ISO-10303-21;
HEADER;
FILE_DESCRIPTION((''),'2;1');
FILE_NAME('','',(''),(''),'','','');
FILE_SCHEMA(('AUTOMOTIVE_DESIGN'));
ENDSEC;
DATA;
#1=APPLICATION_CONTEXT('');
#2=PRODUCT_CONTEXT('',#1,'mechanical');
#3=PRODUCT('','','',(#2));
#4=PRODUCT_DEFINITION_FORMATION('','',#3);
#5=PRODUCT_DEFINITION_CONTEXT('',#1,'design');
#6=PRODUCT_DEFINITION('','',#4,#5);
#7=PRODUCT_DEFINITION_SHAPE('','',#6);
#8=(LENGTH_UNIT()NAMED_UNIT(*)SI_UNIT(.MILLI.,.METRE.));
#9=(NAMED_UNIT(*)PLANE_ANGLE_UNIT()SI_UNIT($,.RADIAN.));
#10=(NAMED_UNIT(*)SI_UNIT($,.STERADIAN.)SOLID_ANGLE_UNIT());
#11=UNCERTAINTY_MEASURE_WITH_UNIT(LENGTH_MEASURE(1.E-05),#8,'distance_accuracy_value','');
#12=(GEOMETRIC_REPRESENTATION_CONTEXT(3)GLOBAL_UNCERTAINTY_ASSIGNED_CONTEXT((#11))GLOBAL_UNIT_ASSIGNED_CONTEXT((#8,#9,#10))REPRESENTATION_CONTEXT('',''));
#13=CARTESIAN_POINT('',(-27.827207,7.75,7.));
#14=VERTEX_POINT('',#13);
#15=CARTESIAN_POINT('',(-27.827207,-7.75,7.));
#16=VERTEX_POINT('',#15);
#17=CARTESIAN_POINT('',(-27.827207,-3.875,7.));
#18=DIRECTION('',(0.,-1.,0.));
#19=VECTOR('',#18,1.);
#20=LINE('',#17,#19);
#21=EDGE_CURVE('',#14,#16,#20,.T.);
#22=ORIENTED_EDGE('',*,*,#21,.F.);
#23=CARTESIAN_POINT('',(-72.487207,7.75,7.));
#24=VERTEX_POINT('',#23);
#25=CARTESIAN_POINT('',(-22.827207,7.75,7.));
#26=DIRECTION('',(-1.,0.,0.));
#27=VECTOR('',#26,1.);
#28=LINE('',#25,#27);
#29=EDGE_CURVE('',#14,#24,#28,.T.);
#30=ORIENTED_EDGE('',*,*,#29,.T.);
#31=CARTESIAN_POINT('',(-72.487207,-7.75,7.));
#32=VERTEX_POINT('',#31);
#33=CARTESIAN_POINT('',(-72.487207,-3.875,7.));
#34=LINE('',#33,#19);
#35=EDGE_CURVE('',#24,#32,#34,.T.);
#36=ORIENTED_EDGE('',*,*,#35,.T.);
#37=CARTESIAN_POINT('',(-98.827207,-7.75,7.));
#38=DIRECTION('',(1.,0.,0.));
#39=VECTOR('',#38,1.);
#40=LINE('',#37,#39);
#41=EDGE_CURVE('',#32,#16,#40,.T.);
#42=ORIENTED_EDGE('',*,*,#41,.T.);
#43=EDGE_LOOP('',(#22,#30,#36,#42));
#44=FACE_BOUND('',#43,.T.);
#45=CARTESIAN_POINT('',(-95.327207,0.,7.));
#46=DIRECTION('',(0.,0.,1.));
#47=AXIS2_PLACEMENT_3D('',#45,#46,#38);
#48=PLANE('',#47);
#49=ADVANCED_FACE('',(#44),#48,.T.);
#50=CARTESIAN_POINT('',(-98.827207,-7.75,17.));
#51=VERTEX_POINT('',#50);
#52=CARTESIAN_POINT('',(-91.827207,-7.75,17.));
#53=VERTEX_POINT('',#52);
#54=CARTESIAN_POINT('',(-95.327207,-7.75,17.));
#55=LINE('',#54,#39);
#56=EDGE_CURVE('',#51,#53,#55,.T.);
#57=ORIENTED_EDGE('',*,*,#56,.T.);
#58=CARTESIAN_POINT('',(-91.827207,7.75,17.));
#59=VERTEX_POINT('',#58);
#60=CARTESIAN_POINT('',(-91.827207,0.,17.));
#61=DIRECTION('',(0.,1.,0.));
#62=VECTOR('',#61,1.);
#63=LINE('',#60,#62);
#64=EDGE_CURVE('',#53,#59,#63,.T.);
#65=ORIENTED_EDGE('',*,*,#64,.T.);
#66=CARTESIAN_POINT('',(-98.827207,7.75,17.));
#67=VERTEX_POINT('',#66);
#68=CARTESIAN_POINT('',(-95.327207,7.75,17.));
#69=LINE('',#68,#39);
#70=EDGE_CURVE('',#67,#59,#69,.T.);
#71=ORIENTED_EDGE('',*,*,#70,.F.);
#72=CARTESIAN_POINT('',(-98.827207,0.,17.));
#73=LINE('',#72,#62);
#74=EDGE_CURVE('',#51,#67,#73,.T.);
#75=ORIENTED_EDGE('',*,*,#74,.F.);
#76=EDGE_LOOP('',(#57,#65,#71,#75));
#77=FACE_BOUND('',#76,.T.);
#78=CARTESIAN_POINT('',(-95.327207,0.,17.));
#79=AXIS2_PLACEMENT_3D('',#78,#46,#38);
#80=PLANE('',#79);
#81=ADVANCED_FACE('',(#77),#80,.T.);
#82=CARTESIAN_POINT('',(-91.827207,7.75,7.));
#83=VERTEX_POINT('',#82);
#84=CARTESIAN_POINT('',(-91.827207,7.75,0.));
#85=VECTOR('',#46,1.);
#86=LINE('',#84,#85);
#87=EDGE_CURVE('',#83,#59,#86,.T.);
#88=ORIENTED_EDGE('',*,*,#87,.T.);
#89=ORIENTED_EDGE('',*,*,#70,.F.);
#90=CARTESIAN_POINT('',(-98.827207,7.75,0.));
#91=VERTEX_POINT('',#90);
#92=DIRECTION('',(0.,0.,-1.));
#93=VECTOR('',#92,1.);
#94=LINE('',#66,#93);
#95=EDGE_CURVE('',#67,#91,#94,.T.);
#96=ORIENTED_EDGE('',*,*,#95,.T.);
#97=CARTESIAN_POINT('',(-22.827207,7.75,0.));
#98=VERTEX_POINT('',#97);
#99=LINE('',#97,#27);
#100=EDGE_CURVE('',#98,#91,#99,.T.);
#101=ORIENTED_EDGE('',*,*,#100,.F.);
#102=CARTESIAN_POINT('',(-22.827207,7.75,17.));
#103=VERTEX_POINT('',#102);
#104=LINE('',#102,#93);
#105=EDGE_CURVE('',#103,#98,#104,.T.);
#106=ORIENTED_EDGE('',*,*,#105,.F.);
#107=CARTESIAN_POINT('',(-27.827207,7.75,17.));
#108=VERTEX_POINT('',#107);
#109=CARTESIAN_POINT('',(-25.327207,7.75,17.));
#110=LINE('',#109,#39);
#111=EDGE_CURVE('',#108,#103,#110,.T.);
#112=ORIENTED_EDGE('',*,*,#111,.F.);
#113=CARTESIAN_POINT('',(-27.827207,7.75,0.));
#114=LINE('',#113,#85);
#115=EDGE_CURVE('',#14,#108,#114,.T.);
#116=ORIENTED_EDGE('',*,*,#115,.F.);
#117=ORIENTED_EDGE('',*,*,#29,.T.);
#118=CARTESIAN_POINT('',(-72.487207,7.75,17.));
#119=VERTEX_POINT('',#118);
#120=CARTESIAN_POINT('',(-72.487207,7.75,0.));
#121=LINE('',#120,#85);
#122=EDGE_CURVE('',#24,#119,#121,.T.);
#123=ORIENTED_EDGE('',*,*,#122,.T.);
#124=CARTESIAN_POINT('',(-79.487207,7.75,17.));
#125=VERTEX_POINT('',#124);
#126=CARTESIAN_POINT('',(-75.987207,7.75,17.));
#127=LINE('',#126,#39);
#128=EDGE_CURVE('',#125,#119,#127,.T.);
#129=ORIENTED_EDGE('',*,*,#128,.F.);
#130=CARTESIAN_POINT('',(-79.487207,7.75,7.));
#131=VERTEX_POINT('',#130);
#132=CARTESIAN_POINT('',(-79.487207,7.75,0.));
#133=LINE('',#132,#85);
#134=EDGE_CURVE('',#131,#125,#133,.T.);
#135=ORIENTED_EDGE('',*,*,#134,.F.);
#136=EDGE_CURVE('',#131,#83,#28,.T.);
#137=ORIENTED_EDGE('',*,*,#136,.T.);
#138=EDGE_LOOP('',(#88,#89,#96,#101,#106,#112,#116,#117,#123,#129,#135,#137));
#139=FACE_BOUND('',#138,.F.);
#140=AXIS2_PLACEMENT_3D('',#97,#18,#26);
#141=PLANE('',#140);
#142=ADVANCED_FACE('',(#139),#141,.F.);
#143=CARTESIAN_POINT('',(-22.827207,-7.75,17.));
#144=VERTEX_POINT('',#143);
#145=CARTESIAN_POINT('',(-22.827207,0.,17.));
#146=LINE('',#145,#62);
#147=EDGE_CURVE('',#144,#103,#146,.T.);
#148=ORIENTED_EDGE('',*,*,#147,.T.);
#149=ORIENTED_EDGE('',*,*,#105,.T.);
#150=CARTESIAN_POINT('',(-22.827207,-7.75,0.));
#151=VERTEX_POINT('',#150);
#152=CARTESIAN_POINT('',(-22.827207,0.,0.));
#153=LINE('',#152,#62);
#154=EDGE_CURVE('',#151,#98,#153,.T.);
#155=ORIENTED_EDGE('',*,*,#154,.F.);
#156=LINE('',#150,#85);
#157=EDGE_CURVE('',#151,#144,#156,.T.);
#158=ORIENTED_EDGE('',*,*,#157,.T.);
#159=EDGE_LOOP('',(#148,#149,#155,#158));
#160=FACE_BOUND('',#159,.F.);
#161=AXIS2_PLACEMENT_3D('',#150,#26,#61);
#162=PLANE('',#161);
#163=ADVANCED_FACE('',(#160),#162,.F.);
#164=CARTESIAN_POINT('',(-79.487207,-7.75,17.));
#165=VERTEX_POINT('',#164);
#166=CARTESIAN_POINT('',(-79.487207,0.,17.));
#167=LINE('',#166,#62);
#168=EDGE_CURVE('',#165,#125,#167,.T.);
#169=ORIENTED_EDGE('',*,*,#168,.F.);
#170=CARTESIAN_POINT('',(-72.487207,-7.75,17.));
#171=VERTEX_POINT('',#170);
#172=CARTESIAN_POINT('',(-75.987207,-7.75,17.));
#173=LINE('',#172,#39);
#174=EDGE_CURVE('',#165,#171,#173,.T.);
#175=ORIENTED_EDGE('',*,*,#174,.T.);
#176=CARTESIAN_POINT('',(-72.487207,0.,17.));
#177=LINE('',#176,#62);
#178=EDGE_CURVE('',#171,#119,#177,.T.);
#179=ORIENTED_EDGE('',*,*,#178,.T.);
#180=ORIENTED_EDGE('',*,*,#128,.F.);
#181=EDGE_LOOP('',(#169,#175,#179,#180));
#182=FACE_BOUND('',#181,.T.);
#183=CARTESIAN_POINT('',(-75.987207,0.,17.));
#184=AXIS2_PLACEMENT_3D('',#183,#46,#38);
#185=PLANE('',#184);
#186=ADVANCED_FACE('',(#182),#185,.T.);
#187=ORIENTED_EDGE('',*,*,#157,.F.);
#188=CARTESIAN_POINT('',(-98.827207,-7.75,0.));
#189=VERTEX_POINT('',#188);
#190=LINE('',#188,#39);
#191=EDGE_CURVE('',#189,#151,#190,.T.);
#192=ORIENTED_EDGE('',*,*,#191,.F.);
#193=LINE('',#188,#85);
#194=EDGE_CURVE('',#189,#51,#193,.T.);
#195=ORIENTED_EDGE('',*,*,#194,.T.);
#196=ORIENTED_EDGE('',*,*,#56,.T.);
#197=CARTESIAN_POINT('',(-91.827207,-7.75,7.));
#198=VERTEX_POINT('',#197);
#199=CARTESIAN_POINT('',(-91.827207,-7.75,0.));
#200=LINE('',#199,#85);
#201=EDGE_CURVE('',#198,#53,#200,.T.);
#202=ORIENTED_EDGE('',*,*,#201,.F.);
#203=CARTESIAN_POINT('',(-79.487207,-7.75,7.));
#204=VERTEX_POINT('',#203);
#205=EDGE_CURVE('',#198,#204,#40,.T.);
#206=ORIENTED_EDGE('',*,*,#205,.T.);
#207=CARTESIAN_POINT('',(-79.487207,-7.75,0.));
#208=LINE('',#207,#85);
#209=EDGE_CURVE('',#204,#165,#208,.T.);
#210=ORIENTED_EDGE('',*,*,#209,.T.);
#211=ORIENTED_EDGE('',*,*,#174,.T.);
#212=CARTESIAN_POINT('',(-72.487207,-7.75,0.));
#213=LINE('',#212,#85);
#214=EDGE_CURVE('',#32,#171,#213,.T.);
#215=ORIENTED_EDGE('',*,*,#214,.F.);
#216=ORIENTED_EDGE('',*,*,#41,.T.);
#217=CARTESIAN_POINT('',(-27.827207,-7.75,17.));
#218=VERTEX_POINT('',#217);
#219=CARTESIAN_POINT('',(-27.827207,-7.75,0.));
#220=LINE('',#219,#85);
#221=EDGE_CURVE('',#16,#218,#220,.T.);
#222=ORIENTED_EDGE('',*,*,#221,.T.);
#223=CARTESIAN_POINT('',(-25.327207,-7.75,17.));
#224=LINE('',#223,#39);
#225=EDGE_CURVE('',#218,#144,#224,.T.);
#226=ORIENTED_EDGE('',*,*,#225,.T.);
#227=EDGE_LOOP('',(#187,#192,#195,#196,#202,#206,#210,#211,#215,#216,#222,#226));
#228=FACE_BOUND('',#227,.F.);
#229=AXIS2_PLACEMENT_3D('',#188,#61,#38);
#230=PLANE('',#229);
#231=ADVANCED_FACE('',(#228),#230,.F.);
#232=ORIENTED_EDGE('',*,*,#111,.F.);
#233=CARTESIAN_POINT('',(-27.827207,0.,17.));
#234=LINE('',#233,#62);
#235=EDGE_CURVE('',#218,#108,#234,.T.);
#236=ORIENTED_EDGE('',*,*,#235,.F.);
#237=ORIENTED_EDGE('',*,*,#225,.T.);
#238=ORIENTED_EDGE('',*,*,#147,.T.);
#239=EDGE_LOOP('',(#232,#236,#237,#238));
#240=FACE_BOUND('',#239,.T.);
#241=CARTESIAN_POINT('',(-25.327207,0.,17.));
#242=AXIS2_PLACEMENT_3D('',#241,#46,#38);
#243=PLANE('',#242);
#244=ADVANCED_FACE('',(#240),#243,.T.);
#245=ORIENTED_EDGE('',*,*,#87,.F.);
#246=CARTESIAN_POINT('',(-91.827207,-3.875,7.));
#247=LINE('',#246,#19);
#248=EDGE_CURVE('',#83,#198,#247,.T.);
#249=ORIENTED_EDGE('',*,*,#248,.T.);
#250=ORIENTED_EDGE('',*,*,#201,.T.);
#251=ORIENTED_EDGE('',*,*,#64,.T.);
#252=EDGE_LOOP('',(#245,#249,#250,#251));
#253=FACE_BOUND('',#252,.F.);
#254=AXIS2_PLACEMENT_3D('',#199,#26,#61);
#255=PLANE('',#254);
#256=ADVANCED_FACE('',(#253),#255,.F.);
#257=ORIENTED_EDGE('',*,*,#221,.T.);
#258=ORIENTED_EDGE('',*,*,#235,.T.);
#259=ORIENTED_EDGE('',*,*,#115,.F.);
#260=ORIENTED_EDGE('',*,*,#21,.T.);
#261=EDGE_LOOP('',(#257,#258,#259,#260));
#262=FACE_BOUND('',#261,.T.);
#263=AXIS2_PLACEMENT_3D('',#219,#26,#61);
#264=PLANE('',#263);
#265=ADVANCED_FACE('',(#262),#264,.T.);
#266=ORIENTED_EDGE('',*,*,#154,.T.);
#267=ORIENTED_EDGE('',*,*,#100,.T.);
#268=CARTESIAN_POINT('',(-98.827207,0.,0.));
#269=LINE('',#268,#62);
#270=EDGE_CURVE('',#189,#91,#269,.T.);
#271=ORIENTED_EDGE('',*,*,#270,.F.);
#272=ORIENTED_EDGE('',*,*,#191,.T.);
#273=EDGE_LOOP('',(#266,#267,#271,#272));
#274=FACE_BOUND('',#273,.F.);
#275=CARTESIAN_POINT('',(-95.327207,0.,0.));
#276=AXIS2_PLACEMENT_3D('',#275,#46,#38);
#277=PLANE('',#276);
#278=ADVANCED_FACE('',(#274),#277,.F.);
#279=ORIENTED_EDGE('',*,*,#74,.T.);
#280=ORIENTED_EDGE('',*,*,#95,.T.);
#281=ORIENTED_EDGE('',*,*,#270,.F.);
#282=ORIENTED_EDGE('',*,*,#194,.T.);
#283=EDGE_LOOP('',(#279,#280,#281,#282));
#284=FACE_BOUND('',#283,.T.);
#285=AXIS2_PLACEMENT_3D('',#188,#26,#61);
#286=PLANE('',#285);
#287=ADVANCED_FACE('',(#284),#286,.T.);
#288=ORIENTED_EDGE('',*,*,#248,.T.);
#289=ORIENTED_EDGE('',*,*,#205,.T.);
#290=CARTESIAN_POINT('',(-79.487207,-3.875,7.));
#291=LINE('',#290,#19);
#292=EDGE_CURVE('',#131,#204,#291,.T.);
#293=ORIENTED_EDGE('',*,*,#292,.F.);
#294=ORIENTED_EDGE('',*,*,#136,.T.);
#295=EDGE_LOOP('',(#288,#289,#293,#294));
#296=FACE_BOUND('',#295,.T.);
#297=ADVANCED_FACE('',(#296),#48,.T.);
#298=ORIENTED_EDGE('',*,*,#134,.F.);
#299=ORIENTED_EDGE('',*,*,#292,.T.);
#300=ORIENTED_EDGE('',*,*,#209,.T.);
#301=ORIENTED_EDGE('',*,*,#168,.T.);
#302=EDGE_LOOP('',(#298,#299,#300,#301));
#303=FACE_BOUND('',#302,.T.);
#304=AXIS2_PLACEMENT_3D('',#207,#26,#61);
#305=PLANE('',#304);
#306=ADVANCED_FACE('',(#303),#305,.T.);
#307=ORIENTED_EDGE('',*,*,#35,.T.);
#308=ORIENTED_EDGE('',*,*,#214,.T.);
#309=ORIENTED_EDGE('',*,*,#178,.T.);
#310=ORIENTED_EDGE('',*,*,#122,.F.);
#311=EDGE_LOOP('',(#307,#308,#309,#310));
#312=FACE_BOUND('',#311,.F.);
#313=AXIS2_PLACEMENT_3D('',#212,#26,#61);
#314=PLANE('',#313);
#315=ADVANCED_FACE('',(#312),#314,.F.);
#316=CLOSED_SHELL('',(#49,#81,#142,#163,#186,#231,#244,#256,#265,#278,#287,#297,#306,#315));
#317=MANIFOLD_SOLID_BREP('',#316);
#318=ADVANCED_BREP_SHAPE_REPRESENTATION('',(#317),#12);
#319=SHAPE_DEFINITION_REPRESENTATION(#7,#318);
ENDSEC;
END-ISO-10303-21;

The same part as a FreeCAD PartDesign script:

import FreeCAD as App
import Part
import Sketcher
from FreeCAD import Vector
Q = App.Units.Quantity


def add_polygon(sketch, points):
    """Adds a closed chain of lines whose ends are joined by coincident constraints."""
    first, n = sketch.GeometryCount, len(points)
    for a, b in zip(points, points[1:] + points[:1]):
        sketch.addGeometry(Part.LineSegment(App.Vector(*a, 0), App.Vector(*b, 0)), False)
    for i in range(n):
        sketch.addConstraint(Sketcher.Constraint("Coincident", first + i, 2, first + (i + 1) % n, 1))

doc = App.newDocument("Part")
body = doc.addObject("PartDesign::Body", "Body")

# Sketch on XY plane
sketch1 = body.newObject("Sketcher::SketchObject", "Sketch")
sketch1.AttachmentSupport = (doc.getObject("XY_Plane"), [""])
sketch1.MapMode = "FlatFace"
add_polygon(sketch1, [(-98.827207, 7.75), (-98.827207, -7.75), (-22.827207, -7.75), (-22.827207, 7.75)])  # lines 0-3
sketch1.addConstraint([
    Sketcher.Constraint("Vertical", 0),
    Sketcher.Constraint("Horizontal", 1),
    Sketcher.Constraint("Vertical", 2),
    Sketcher.Constraint("Horizontal", 3),
    Sketcher.Constraint("DistanceX", 1, 1, 1, 2, Q("76 mm")),
    Sketcher.Constraint("DistanceY", 0, 2, 0, 1, Q("15.5 mm")),
    Sketcher.Constraint("DistanceY", 0, 2, -1, 1, Q("7.75 mm")),
    Sketcher.Constraint("DistanceX", 0, 2, -1, 1, Q("98.827207 mm")),
])
pad1 = body.newObject("PartDesign::Pad", "Pad")
pad1.Profile = sketch1
pad1.Length = 7

# Sketch on XY plane
sketch2 = body.newObject("Sketcher::SketchObject", "Sketch001")
sketch2.AttachmentSupport = (doc.getObject("XY_Plane"), [""])
sketch2.MapMode = "FlatFace"
add_polygon(sketch2, [(-98.827207, 7.75), (-98.827207, -7.75), (-91.827207, -7.75), (-91.827207, 7.75)])  # lines 0-3
add_polygon(sketch2, [(-79.487207, 7.75), (-79.487207, -7.75), (-72.487207, -7.75), (-72.487207, 7.75)])  # lines 4-7
add_polygon(sketch2, [(-27.827207, 7.75), (-27.827207, -7.75), (-22.827207, -7.75), (-22.827207, 7.75)])  # lines 8-11
sketch2.addConstraint([
    Sketcher.Constraint("Vertical", 0),
    Sketcher.Constraint("Horizontal", 1),
    Sketcher.Constraint("Vertical", 2),
    Sketcher.Constraint("Horizontal", 3),
    Sketcher.Constraint("Vertical", 4),
    Sketcher.Constraint("Horizontal", 5),
    Sketcher.Constraint("Vertical", 6),
    Sketcher.Constraint("Horizontal", 7),
    Sketcher.Constraint("Vertical", 8),
    Sketcher.Constraint("Horizontal", 9),
    Sketcher.Constraint("Vertical", 10),
    Sketcher.Constraint("Horizontal", 11),
    Sketcher.Constraint("Horizontal", 1, 2, 4, 2),
    Sketcher.Constraint("Horizontal", 3, 2, 6, 2),
    Sketcher.Constraint("Horizontal", 5, 2, 8, 2),
    Sketcher.Constraint("Horizontal", 7, 2, 10, 2),
    Sketcher.Constraint("Equal", 3, 5),
    Sketcher.Constraint("DistanceX", 1, 1, 1, 2, Q("7 mm")),
    Sketcher.Constraint("DistanceX", 9, 1, 9, 2, Q("5 mm")),
    Sketcher.Constraint("DistanceY", 0, 2, 0, 1, Q("15.5 mm")),
    Sketcher.Constraint("DistanceX", 1, 2, 8, 2, Q("64 mm")),
    Sketcher.Constraint("DistanceY", 0, 2, -1, 1, Q("7.75 mm")),
    Sketcher.Constraint("DistanceX", 1, 2, 4, 2, Q("12.34 mm")),
    Sketcher.Constraint("DistanceX", 0, 2, -1, 1, Q("98.827207 mm")),
])
pad2 = body.newObject("PartDesign::Pad", "Pad001")
pad2.Profile = sketch2
pad2.Length = 17

doc.recompute()
